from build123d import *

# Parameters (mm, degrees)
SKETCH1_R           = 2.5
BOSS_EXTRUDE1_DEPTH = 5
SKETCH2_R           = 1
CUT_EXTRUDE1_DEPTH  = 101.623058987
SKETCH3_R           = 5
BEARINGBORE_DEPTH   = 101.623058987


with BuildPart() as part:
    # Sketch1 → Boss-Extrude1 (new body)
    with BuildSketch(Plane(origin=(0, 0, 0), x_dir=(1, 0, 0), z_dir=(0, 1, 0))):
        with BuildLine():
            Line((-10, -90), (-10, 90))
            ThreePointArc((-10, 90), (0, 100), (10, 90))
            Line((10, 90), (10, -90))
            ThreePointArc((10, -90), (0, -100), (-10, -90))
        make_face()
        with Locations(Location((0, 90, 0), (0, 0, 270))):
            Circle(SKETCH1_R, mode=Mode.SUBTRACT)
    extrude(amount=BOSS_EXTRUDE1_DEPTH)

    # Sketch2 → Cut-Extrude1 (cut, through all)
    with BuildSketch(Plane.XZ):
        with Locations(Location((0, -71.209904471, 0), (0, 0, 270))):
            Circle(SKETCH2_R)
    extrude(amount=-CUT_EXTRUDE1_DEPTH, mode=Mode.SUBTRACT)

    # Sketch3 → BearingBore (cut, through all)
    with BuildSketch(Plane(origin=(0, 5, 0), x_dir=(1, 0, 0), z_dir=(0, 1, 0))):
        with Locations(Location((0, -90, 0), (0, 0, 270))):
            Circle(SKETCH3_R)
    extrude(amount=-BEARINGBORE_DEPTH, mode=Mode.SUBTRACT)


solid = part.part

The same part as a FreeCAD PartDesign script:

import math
import FreeCAD as App
import Part
import Sketcher

V = App.Vector

doc = App.newDocument("Part")
body = doc.addObject("PartDesign::Body", "Body")

# Sketch on XZ plane
sketch1 = body.newObject("Sketcher::SketchObject", "Sketch")
sketch1.AttachmentSupport = (doc.getObject("XZ_Plane"), [""])
sketch1.MapMode = "FlatFace"
sketch1.addGeometry([
    Part.LineSegment(V(-10, -90, 0), V(-10, 90, 0)),  # 0
    Part.ArcOfCircle(Part.Circle(V(0, 90, 0), V(0, 0, 1), 10), math.radians(0), math.radians(180)),  # 1
    Part.LineSegment(V(10, 90, 0), V(10, -90, 0)),  # 2
    Part.ArcOfCircle(Part.Circle(V(0, -90, 0), V(0, 0, 1), 10), math.radians(180), math.radians(360)),  # 3
    Part.Circle(V(0, -90, 0), V(0, 0, 1), 2.5),  # 4
], False)
sketch1.addConstraint([
    Sketcher.Constraint("Tangent", 0, 2, 1, 2),
    Sketcher.Constraint("Tangent", 1, 1, 2, 1),
    Sketcher.Constraint("Tangent", 2, 2, 3, 2),
    Sketcher.Constraint("Tangent", 3, 1, 0, 1),
    Sketcher.Constraint("Vertical", 0),
    Sketcher.Constraint("Vertical", 2),
    Sketcher.Constraint("Coincident", 4, 3, 3, 3),
    Sketcher.Constraint("Symmetric", 1, 3, 3, 3, -1, 1),
    Sketcher.Constraint("Diameter", 4, 5.0),
    Sketcher.Constraint("Radius", 1, 10.0),
    Sketcher.Constraint("DistanceY", 0, 1, 0, 2, 180.0),
])
pad1 = body.newObject("PartDesign::Pad", "Pad")
pad1.Profile = sketch1
pad1.Length = 5
pad1.Reversed = True

# Sketch on XZ plane
sketch2 = body.newObject("Sketcher::SketchObject", "Sketch001")
sketch2.AttachmentSupport = (doc.getObject("XZ_Plane"), [""])
sketch2.MapMode = "FlatFace"
sketch2.addGeometry(Part.Circle(V(0, -71.2, 0), V(0, 0, 1), 1), False)
sketch2.addConstraint([
    Sketcher.Constraint("PointOnObject", 0, 3, -2),
    Sketcher.Constraint("Diameter", 0, 2.0),
    Sketcher.Constraint("DistanceY", 0, 3, -1, 1, 71.209904),
])
pocket1 = body.newObject("PartDesign::Pocket", "Pocket")
pocket1.Profile = sketch2
pocket1.Type = "ThroughAll"

# Sketch on XZ plane
sketch3 = body.newObject("Sketcher::SketchObject", "Sketch002")
sketch3.AttachmentSupport = (doc.getObject("XZ_Plane"), [""])
sketch3.MapMode = "FlatFace"
sketch3.AttachmentOffset = App.Placement(V(0, 0, -5), App.Rotation())
sketch3.addGeometry(Part.Circle(V(0, 90, 0), V(0, 0, 1), 5), False)
sketch3.addConstraint([
    Sketcher.Constraint("PointOnObject", 0, 3, -2),
    Sketcher.Constraint("Diameter", 0, 10.0),
    Sketcher.Constraint("DistanceY", -1, 1, 0, 3, 90.0),
])
pocket2 = body.newObject("PartDesign::Pocket", "Pocket001")
pocket2.Profile = sketch3
pocket2.Type = "ThroughAll"
pocket2.Reversed = True

doc.recompute()
